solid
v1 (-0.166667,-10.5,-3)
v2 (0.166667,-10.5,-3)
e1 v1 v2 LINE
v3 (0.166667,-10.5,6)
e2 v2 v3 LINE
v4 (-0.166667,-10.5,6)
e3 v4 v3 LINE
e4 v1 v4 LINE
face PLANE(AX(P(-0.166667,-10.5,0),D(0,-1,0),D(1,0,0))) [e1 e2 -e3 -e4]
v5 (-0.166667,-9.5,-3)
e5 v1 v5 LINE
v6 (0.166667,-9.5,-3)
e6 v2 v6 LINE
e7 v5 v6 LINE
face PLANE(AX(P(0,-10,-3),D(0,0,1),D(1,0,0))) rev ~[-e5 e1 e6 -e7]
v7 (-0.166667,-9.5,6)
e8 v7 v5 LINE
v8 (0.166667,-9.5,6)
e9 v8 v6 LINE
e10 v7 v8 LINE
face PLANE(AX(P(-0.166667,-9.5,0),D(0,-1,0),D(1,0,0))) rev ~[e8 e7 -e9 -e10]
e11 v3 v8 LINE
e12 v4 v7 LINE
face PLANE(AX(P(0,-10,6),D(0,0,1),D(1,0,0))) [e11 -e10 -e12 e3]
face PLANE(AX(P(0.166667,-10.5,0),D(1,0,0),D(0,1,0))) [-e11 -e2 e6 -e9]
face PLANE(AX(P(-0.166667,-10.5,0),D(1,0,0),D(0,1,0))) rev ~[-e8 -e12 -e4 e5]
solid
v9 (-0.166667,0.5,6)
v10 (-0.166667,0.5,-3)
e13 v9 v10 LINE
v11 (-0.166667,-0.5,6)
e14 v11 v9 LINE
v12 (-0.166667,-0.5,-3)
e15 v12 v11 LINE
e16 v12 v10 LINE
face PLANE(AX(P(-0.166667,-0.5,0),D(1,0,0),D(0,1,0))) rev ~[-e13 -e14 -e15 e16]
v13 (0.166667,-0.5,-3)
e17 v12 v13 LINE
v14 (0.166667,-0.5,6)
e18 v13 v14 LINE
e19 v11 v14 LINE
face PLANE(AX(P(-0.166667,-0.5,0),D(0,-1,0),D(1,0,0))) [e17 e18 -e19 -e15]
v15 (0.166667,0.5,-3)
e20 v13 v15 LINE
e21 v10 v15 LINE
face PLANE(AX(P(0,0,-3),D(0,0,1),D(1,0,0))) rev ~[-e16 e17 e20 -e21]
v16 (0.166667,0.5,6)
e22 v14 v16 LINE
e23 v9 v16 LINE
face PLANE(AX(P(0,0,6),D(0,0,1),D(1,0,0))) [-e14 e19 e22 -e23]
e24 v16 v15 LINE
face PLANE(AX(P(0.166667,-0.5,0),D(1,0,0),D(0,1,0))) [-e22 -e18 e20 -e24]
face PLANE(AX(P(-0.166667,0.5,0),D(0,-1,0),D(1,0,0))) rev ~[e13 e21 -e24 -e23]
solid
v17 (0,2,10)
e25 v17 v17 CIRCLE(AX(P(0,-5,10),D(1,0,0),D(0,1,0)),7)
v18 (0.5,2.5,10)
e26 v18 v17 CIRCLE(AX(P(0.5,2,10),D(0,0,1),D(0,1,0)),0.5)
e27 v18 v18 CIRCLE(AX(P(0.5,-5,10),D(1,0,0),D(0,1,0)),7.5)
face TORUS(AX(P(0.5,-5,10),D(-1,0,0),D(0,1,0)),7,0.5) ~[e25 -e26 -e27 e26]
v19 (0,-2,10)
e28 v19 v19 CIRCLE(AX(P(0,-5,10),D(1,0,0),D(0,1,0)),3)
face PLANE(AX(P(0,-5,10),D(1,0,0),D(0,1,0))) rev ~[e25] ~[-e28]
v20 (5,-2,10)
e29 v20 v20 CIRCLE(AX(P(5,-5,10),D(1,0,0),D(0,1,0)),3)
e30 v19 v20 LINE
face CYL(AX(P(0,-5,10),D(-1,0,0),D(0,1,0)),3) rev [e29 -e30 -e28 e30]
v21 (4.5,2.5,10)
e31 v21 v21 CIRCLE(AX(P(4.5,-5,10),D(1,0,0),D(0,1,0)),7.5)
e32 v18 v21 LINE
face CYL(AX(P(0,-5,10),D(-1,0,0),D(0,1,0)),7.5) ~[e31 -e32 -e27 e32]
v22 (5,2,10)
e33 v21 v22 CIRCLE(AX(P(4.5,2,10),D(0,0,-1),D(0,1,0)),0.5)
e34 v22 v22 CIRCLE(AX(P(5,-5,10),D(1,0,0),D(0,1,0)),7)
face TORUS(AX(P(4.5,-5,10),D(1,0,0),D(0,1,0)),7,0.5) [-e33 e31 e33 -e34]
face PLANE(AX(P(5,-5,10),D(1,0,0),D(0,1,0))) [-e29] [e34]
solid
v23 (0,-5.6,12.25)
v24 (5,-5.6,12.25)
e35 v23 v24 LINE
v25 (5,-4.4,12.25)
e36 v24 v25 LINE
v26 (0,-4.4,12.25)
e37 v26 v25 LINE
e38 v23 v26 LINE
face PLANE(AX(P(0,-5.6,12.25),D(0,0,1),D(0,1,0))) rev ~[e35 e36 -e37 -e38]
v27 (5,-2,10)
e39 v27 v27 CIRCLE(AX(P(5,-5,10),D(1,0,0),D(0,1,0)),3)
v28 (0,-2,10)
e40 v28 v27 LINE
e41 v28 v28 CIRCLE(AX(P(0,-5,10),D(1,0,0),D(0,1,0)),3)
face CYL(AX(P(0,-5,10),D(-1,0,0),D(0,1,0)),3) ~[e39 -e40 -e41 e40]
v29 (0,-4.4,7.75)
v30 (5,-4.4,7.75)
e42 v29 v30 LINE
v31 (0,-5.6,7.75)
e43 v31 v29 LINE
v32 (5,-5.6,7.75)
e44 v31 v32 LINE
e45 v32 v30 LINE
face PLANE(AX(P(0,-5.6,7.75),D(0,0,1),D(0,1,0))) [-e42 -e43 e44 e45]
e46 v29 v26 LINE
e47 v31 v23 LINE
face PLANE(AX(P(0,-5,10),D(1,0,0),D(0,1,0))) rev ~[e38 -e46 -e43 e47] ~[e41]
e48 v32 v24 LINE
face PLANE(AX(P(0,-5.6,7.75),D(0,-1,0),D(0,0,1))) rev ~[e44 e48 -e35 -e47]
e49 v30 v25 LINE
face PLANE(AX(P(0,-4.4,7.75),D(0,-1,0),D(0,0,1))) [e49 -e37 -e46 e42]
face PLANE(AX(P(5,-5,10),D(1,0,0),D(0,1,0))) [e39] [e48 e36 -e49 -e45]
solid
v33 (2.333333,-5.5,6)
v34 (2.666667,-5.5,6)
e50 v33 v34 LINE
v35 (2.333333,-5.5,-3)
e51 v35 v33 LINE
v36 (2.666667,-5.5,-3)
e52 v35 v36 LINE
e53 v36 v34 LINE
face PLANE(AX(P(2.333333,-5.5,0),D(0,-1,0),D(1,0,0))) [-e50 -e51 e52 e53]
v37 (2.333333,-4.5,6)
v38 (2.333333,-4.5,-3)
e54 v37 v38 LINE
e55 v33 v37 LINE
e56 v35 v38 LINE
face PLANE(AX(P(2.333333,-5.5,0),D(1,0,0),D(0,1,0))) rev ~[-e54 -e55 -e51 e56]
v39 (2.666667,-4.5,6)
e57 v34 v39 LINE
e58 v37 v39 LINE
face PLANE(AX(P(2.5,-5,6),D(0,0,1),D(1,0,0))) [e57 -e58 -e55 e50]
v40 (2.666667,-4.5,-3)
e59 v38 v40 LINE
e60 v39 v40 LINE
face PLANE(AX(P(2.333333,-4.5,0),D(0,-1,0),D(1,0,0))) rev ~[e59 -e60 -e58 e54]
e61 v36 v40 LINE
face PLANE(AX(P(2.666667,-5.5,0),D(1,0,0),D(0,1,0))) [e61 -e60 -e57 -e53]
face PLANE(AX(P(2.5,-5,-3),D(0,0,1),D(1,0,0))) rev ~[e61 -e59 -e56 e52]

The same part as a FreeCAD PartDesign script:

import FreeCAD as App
import Part
import Sketcher
from FreeCAD import Vector


def edges_at(feature, points):
    """Names of the edges that pass closest to the given points."""
    edges = feature.Shape.Edges
    near = lambda p: min(range(len(edges)), key=lambda i: edges[i].distToShape(Part.Vertex(*p))[0])
    return sorted({f"Edge{near(p) + 1}" for p in points})

doc = App.newDocument("Part")
body = doc.addObject("PartDesign::Body", "Body")

# Sketch on YZ plane
sketch1 = body.newObject("Sketcher::SketchObject", "Sketch")
sketch1.AttachmentSupport = (doc.getObject("YZ_Plane"), [""])
sketch1.MapMode = "FlatFace"
sketch1.addGeometry(Part.Circle(Vector(-5, 10, 0), Vector(0, 0, 1), 3), False)
sketch1.addGeometry(Part.LineSegment(Vector(-4.4, 7.8, 0), Vector(-5.6, 7.8, 0)), False)
sketch1.addGeometry(Part.LineSegment(Vector(-5.6, 7.8, 0), Vector(-5.6, 12.2, 0)), False)
sketch1.addGeometry(Part.LineSegment(Vector(-5.6, 12.2, 0), Vector(-4.4, 12.2, 0)), False)
sketch1.addGeometry(Part.LineSegment(Vector(-4.4, 12.2, 0), Vector(-4.4, 7.8, 0)), False)
sketch1.addConstraint(Sketcher.Constraint("Coincident", 1, 2, 2, 1))
sketch1.addConstraint(Sketcher.Constraint("Coincident", 2, 2, 3, 1))
sketch1.addConstraint(Sketcher.Constraint("Coincident", 3, 2, 4, 1))
sketch1.addConstraint(Sketcher.Constraint("Coincident", 4, 2, 1, 1))
sketch1.addConstraint(Sketcher.Constraint("Horizontal", 1))
sketch1.addConstraint(Sketcher.Constraint("Vertical", 2))
sketch1.addConstraint(Sketcher.Constraint("Horizontal", 3))
sketch1.addConstraint(Sketcher.Constraint("Vertical", 4))
sketch1.addConstraint(Sketcher.Constraint("Diameter", 0, 6.0))
sketch1.addConstraint(Sketcher.Constraint("DistanceX", 1, 2, 1, 1, 1.2))
sketch1.addConstraint(Sketcher.Constraint("DistanceY", 2, 1, 2, 2, 4.5))
sketch1.addConstraint(Sketcher.Constraint("DistanceX", 0, 3, -1, 1, 5.0))
sketch1.addConstraint(Sketcher.Constraint("DistanceY", -1, 1, 0, 3, 10.0))
sketch1.addConstraint(Sketcher.Constraint("DistanceX", 1, 2, -1, 1, 5.6))
sketch1.addConstraint(Sketcher.Constraint("DistanceY", -1, 1, 1, 2, 7.75))
pad1 = body.newObject("PartDesign::Pad", "Pad")
pad1.Profile = sketch1
pad1.Length = 5
body2 = doc.addObject("PartDesign::Body", "Body001")

# Sketch on YZ plane
sketch2 = body2.newObject("Sketcher::SketchObject", "Sketch001")
sketch2.AttachmentSupport = (doc.getObject("YZ_Plane001"), [""])
sketch2.MapMode = "FlatFace"
sketch2.addGeometry(Part.Circle(Vector(-5, 10, 0), Vector(0, 0, 1), 7.5), False)
sketch2.addGeometry(Part.Circle(Vector(-5, 10, 0), Vector(0, 0, 1), 3), False)
sketch2.addConstraint(Sketcher.Constraint("Coincident", 1, 3, 0, 3))
sketch2.addConstraint(Sketcher.Constraint("Diameter", 0, 15.0))
sketch2.addConstraint(Sketcher.Constraint("Diameter", 1, 6.0))
sketch2.addConstraint(Sketcher.Constraint("DistanceX", 0, 3, -1, 1, 5.0))
sketch2.addConstraint(Sketcher.Constraint("DistanceY", -1, 1, 0, 3, 10.0))
pad2 = body2.newObject("PartDesign::Pad", "Pad001")
pad2.Profile = sketch2
pad2.Length = 5
doc.recompute()

fillet = body2.newObject("PartDesign::Fillet", "Fillet")
fillet.Base = (pad2, edges_at(pad2, [(0, -12.5, 10), (5, -12.5, 10)]))
fillet.Radius = 0.5
body3 = doc.addObject("PartDesign::Body", "Body002")
body3.AllowCompound = True

# Sketch on XY plane
sketch3 = body3.newObject("Sketcher::SketchObject", "Sketch002")
sketch3.AttachmentSupport = (doc.getObject("XY_Plane002"), [""])
sketch3.MapMode = "FlatFace"
sketch3.addGeometry(Part.LineSegment(Vector(-0.17, 0.5, 0), Vector(-0.17, -0.5, 0)), False)
sketch3.addGeometry(Part.LineSegment(Vector(-0.17, -0.5, 0), Vector(0.17, -0.5, 0)), False)
sketch3.addGeometry(Part.LineSegment(Vector(0.17, -0.5, 0), Vector(0.17, 0.5, 0)), False)
sketch3.addGeometry(Part.LineSegment(Vector(0.17, 0.5, 0), Vector(-0.17, 0.5, 0)), False)
sketch3.addGeometry(Part.LineSegment(Vector(2.33, -4.5, 0), Vector(2.33, -5.5, 0)), False)
sketch3.addGeometry(Part.LineSegment(Vector(2.33, -5.5, 0), Vector(2.67, -5.5, 0)), False)
sketch3.addGeometry(Part.LineSegment(Vector(2.67, -5.5, 0), Vector(2.67, -4.5, 0)), False)
sketch3.addGeometry(Part.LineSegment(Vector(2.67, -4.5, 0), Vector(2.33, -4.5, 0)), False)
sketch3.addGeometry(Part.LineSegment(Vector(-0.17, -9.5, 0), Vector(-0.17, -10.5, 0)), False)
sketch3.addGeometry(Part.LineSegment(Vector(-0.17, -10.5, 0), Vector(0.17, -10.5, 0)), False)
sketch3.addGeometry(Part.LineSegment(Vector(0.17, -10.5, 0), Vector(0.17, -9.5, 0)), False)
sketch3.addGeometry(Part.LineSegment(Vector(0.17, -9.5, 0), Vector(-0.17, -9.5, 0)), False)
sketch3.addConstraint(Sketcher.Constraint("Coincident", 0, 2, 1, 1))
sketch3.addConstraint(Sketcher.Constraint("Coincident", 1, 2, 2, 1))
sketch3.addConstraint(Sketcher.Constraint("Coincident", 2, 2, 3, 1))
sketch3.addConstraint(Sketcher.Constraint("Coincident", 3, 2, 0, 1))
sketch3.addConstraint(Sketcher.Constraint("Coincident", 4, 2, 5, 1))
sketch3.addConstraint(Sketcher.Constraint("Coincident", 5, 2, 6, 1))
sketch3.addConstraint(Sketcher.Constraint("Coincident", 6, 2, 7, 1))
sketch3.addConstraint(Sketcher.Constraint("Coincident", 7, 2, 4, 1))
sketch3.addConstraint(Sketcher.Constraint("Coincident", 8, 2, 9, 1))
sketch3.addConstraint(Sketcher.Constraint("Coincident", 9, 2, 10, 1))
sketch3.addConstraint(Sketcher.Constraint("Coincident", 10, 2, 11, 1))
sketch3.addConstraint(Sketcher.Constraint("Coincident", 11, 2, 8, 1))
sketch3.addConstraint(Sketcher.Constraint("Vertical", 0))
sketch3.addConstraint(Sketcher.Constraint("Horizontal", 1))
sketch3.addConstraint(Sketcher.Constraint("Vertical", 2))
sketch3.addConstraint(Sketcher.Constraint("Horizontal", 3))
sketch3.addConstraint(Sketcher.Constraint("Vertical", 4))
sketch3.addConstraint(Sketcher.Constraint("Horizontal", 5))
sketch3.addConstraint(Sketcher.Constraint("Vertical", 6))
sketch3.addConstraint(Sketcher.Constraint("Horizontal", 7))
sketch3.addConstraint(Sketcher.Constraint("Vertical", 8))
sketch3.addConstraint(Sketcher.Constraint("Horizontal", 9))
sketch3.addConstraint(Sketcher.Constraint("Vertical", 10))
sketch3.addConstraint(Sketcher.Constraint("Horizontal", 11))
sketch3.addConstraint(Sketcher.Constraint("Symmetric", 0, 2, 2, 2, -1, 1))
sketch3.addConstraint(Sketcher.Constraint("Vertical", 3, 2, 8, 2))
sketch3.addConstraint(Sketcher.Constraint("Vertical", 2, 2, 9, 2))
sketch3.addConstraint(Sketcher.Constraint("Equal", 3, 5))
sketch3.addConstraint(Sketcher.Constraint("Equal", 2, 4))
sketch3.addConstraint(Sketcher.Constraint("Equal", 6, 8))
sketch3.addConstraint(Sketcher.Constraint("DistanceY", 0, 2, 0, 1, 1.0))
sketch3.addConstraint(Sketcher.Constraint("DistanceY", 4, 2, 1, 2, 5.0))
sketch3.addConstraint(Sketcher.Constraint("DistanceY", 8, 2, 4, 2, 5.0))
sketch3.addConstraint(Sketcher.Constraint("DistanceX", 0, 2, 4, 2, 2.5))
sketch3.addConstraint(Sketcher.Constraint("DistanceX", 1, 1, 1, 2, 0.333334))
pad3 = body3.newObject("PartDesign::Pad", "Pad002")
pad3.Profile = sketch3
pad3.Type = "TwoLengths"
pad3.Length = 6
pad3.Length2 = 3

doc.recompute()
